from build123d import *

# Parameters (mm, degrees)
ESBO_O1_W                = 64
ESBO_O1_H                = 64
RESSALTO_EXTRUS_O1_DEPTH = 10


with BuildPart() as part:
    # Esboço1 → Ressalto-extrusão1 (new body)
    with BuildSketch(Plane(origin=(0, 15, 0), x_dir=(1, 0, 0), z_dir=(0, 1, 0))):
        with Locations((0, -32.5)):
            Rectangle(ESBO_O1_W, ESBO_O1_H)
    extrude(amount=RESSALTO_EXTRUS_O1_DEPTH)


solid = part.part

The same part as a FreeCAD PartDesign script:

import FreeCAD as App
import Part
import Sketcher

V = App.Vector

doc = App.newDocument("Part")
body = doc.addObject("PartDesign::Body", "Body")

# Sketch on XZ plane
sketch1 = body.newObject("Sketcher::SketchObject", "Sketch")
sketch1.AttachmentSupport = (doc.getObject("XZ_Plane"), [""])
sketch1.MapMode = "FlatFace"
sketch1.AttachmentOffset = App.Placement(V(0, 0, -15), App.Rotation())
sketch1.addGeometry(Part.LineSegment(V(-32, 0, 0), V(-32, 64, 0)), False)
sketch1.addGeometry(Part.LineSegment(V(-32, 64, 0), V(32, 64, 0)), False)
sketch1.addGeometry(Part.LineSegment(V(32, 64, 0), V(32, 0, 0)), False)
sketch1.addGeometry(Part.LineSegment(V(32, 0, 0), V(-32, 0, 0)), False)
sketch1.addConstraint(Sketcher.Constraint("Coincident", 0, 2, 1, 1))
sketch1.addConstraint(Sketcher.Constraint("Coincident", 1, 2, 2, 1))
sketch1.addConstraint(Sketcher.Constraint("Coincident", 2, 2, 3, 1))
sketch1.addConstraint(Sketcher.Constraint("Coincident", 3, 2, 0, 1))
sketch1.addConstraint(Sketcher.Constraint("Vertical", 0))
sketch1.addConstraint(Sketcher.Constraint("Horizontal", 1))
sketch1.addConstraint(Sketcher.Constraint("Vertical", 2))
sketch1.addConstraint(Sketcher.Constraint("Horizontal", 3))
sketch1.addConstraint(Sketcher.Constraint("Equal", 3, 0))
sketch1.addConstraint(Sketcher.Constraint("DistanceX", 1, 1, 1, 2, 64.0))
sketch1.addConstraint(Sketcher.Constraint("DistanceX", 0, 2, -1, 1, 32.0))
sketch1.addConstraint(Sketcher.Constraint("DistanceY", -1, 1, 0, 2, 64.5))
pad1 = body.newObject("PartDesign::Pad", "Pad")
pad1.Profile = sketch1
pad1.Length = 10
pad1.Reversed = True

doc.recompute()
